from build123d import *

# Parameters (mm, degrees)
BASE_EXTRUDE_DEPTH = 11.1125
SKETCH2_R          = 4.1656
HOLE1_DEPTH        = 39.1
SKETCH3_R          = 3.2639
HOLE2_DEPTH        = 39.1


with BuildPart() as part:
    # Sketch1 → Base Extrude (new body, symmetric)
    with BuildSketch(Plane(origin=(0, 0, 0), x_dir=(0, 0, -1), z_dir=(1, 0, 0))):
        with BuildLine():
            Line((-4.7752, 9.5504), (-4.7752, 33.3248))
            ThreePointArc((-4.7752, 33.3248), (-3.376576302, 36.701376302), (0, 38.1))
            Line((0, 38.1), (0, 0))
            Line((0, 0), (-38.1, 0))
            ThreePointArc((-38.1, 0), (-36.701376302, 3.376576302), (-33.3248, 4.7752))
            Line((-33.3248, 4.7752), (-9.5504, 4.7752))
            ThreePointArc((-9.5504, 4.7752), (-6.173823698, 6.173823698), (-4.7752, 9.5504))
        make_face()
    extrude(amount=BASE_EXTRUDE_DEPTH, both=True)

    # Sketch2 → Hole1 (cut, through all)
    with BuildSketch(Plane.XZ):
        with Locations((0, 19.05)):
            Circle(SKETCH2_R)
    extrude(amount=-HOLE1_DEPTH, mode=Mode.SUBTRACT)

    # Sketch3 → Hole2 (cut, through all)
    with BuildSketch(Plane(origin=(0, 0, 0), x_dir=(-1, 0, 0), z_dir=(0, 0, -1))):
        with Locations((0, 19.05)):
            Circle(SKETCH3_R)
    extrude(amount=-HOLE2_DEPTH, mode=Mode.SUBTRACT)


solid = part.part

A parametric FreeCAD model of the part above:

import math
import FreeCAD as App
import Part
import Sketcher
Q = App.Units.Quantity

doc = App.newDocument("Part")
body = doc.addObject("PartDesign::Body", "Body")

# Sketch on YZ plane
sketch1 = doc.addObject("Sketcher::SketchObject", "Sketch")
body.addObject(sketch1)
sketch1.AttachmentSupport = (doc.YZ_Plane, [""])
sketch1.MapMode = "FlatFace"
sketch1.addGeometry([
    Part.LineSegment(App.Vector(33.3, 4.8, 0), App.Vector(9.6, 4.8, 0)),  # 0
    Part.ArcOfCircle(Part.Circle(App.Vector(9.6, 9.6, 0), App.Vector(0, 0, 1), 4.8), math.radians(180), math.radians(270)),  # 1
    Part.LineSegment(App.Vector(4.8, 9.6, 0), App.Vector(4.8, 33.3, 0)),  # 2
    Part.ArcOfCircle(Part.Circle(App.Vector(0, 33.3, 0), App.Vector(0, 0, 1), 4.8), math.radians(0), math.radians(90)),  # 3
    Part.LineSegment(App.Vector(0, 38.1, 0), App.Vector(0, 0, 0)),  # 4
    Part.LineSegment(App.Vector(0, 0, 0), App.Vector(38.1, 0, 0)),  # 5
    Part.ArcOfCircle(Part.Circle(App.Vector(33.3, 0, 0), App.Vector(0, 0, 1), 4.8), math.radians(0), math.radians(90)),  # 6
], False)
sketch1.addConstraint([
    Sketcher.Constraint("Tangent", 0, 2, 1, 2),
    Sketcher.Constraint("Tangent", 1, 1, 2, 1),
    Sketcher.Constraint("Tangent", 2, 2, 3, 1),
    Sketcher.Constraint("Coincident", 3, 2, 4, 1),
    Sketcher.Constraint("Coincident", 4, 2, 5, 1),
    Sketcher.Constraint("Coincident", 5, 2, 6, 1),
    Sketcher.Constraint("Tangent", 6, 2, 0, 1),
    Sketcher.Constraint("Horizontal", 0),
    Sketcher.Constraint("Vertical", 2),
    Sketcher.Constraint("Vertical", 4),
    Sketcher.Constraint("Horizontal", 5),
    Sketcher.Constraint("Coincident", 4, 2, -1, 1),
    Sketcher.Constraint("Equal", 1, 3),
    Sketcher.Constraint("Equal", 3, 6),
    Sketcher.Constraint("PointOnObject", 3, 3, -2),
    Sketcher.Constraint("PointOnObject", 6, 3, -1),
    Sketcher.Constraint("Equal", 0, 2),
    Sketcher.Constraint("DistanceX", 5, 1, 5, 2, Q("1.5 in")),
    Sketcher.Constraint("Radius", 1, Q("0.188 in")),
])
pad1 = doc.addObject("PartDesign::Pad", "Pad")
body.addObject(pad1)
pad1.Profile = sketch1
pad1.Length = Q("0.875 in")
pad1.Midplane = True

# Sketch on XZ plane
sketch2 = doc.addObject("Sketcher::SketchObject", "Sketch001")
body.addObject(sketch2)
sketch2.AttachmentSupport = (doc.XZ_Plane, [""])
sketch2.MapMode = "FlatFace"
sketch2.addGeometry(Part.Circle(App.Vector(0, 19.1, 0), App.Vector(0, 0, 1), 4.2), False)
sketch2.addConstraint([
    Sketcher.Constraint("PointOnObject", 0, 3, -2),
    Sketcher.Constraint("Diameter", 0, Q("0.328 in")),
    Sketcher.Constraint("DistanceY", -1, 1, 0, 3, Q("0.75 in")),
])
pocket1 = doc.addObject("PartDesign::Pocket", "Pocket")
body.addObject(pocket1)
pocket1.Profile = sketch2
pocket1.Type = "ThroughAll"

# Sketch on XY plane
sketch3 = doc.addObject("Sketcher::SketchObject", "Sketch002")
body.addObject(sketch3)
sketch3.AttachmentSupport = (doc.XY_Plane, [""])
sketch3.MapMode = "FlatFace"
sketch3.addGeometry(Part.Circle(App.Vector(0, 19.1, 0), App.Vector(0, 0, 1), 3.3), False)
sketch3.addConstraint([
    Sketcher.Constraint("PointOnObject", 0, 3, -2),
    Sketcher.Constraint("Diameter", 0, Q("0.257 in")),
    Sketcher.Constraint("DistanceY", -1, 1, 0, 3, Q("0.75 in")),
])
pocket2 = doc.addObject("PartDesign::Pocket", "Pocket001")
body.addObject(pocket2)
pocket2.Profile = sketch3
pocket2.Type = "ThroughAll"
pocket2.Reversed = True

doc.recompute()
